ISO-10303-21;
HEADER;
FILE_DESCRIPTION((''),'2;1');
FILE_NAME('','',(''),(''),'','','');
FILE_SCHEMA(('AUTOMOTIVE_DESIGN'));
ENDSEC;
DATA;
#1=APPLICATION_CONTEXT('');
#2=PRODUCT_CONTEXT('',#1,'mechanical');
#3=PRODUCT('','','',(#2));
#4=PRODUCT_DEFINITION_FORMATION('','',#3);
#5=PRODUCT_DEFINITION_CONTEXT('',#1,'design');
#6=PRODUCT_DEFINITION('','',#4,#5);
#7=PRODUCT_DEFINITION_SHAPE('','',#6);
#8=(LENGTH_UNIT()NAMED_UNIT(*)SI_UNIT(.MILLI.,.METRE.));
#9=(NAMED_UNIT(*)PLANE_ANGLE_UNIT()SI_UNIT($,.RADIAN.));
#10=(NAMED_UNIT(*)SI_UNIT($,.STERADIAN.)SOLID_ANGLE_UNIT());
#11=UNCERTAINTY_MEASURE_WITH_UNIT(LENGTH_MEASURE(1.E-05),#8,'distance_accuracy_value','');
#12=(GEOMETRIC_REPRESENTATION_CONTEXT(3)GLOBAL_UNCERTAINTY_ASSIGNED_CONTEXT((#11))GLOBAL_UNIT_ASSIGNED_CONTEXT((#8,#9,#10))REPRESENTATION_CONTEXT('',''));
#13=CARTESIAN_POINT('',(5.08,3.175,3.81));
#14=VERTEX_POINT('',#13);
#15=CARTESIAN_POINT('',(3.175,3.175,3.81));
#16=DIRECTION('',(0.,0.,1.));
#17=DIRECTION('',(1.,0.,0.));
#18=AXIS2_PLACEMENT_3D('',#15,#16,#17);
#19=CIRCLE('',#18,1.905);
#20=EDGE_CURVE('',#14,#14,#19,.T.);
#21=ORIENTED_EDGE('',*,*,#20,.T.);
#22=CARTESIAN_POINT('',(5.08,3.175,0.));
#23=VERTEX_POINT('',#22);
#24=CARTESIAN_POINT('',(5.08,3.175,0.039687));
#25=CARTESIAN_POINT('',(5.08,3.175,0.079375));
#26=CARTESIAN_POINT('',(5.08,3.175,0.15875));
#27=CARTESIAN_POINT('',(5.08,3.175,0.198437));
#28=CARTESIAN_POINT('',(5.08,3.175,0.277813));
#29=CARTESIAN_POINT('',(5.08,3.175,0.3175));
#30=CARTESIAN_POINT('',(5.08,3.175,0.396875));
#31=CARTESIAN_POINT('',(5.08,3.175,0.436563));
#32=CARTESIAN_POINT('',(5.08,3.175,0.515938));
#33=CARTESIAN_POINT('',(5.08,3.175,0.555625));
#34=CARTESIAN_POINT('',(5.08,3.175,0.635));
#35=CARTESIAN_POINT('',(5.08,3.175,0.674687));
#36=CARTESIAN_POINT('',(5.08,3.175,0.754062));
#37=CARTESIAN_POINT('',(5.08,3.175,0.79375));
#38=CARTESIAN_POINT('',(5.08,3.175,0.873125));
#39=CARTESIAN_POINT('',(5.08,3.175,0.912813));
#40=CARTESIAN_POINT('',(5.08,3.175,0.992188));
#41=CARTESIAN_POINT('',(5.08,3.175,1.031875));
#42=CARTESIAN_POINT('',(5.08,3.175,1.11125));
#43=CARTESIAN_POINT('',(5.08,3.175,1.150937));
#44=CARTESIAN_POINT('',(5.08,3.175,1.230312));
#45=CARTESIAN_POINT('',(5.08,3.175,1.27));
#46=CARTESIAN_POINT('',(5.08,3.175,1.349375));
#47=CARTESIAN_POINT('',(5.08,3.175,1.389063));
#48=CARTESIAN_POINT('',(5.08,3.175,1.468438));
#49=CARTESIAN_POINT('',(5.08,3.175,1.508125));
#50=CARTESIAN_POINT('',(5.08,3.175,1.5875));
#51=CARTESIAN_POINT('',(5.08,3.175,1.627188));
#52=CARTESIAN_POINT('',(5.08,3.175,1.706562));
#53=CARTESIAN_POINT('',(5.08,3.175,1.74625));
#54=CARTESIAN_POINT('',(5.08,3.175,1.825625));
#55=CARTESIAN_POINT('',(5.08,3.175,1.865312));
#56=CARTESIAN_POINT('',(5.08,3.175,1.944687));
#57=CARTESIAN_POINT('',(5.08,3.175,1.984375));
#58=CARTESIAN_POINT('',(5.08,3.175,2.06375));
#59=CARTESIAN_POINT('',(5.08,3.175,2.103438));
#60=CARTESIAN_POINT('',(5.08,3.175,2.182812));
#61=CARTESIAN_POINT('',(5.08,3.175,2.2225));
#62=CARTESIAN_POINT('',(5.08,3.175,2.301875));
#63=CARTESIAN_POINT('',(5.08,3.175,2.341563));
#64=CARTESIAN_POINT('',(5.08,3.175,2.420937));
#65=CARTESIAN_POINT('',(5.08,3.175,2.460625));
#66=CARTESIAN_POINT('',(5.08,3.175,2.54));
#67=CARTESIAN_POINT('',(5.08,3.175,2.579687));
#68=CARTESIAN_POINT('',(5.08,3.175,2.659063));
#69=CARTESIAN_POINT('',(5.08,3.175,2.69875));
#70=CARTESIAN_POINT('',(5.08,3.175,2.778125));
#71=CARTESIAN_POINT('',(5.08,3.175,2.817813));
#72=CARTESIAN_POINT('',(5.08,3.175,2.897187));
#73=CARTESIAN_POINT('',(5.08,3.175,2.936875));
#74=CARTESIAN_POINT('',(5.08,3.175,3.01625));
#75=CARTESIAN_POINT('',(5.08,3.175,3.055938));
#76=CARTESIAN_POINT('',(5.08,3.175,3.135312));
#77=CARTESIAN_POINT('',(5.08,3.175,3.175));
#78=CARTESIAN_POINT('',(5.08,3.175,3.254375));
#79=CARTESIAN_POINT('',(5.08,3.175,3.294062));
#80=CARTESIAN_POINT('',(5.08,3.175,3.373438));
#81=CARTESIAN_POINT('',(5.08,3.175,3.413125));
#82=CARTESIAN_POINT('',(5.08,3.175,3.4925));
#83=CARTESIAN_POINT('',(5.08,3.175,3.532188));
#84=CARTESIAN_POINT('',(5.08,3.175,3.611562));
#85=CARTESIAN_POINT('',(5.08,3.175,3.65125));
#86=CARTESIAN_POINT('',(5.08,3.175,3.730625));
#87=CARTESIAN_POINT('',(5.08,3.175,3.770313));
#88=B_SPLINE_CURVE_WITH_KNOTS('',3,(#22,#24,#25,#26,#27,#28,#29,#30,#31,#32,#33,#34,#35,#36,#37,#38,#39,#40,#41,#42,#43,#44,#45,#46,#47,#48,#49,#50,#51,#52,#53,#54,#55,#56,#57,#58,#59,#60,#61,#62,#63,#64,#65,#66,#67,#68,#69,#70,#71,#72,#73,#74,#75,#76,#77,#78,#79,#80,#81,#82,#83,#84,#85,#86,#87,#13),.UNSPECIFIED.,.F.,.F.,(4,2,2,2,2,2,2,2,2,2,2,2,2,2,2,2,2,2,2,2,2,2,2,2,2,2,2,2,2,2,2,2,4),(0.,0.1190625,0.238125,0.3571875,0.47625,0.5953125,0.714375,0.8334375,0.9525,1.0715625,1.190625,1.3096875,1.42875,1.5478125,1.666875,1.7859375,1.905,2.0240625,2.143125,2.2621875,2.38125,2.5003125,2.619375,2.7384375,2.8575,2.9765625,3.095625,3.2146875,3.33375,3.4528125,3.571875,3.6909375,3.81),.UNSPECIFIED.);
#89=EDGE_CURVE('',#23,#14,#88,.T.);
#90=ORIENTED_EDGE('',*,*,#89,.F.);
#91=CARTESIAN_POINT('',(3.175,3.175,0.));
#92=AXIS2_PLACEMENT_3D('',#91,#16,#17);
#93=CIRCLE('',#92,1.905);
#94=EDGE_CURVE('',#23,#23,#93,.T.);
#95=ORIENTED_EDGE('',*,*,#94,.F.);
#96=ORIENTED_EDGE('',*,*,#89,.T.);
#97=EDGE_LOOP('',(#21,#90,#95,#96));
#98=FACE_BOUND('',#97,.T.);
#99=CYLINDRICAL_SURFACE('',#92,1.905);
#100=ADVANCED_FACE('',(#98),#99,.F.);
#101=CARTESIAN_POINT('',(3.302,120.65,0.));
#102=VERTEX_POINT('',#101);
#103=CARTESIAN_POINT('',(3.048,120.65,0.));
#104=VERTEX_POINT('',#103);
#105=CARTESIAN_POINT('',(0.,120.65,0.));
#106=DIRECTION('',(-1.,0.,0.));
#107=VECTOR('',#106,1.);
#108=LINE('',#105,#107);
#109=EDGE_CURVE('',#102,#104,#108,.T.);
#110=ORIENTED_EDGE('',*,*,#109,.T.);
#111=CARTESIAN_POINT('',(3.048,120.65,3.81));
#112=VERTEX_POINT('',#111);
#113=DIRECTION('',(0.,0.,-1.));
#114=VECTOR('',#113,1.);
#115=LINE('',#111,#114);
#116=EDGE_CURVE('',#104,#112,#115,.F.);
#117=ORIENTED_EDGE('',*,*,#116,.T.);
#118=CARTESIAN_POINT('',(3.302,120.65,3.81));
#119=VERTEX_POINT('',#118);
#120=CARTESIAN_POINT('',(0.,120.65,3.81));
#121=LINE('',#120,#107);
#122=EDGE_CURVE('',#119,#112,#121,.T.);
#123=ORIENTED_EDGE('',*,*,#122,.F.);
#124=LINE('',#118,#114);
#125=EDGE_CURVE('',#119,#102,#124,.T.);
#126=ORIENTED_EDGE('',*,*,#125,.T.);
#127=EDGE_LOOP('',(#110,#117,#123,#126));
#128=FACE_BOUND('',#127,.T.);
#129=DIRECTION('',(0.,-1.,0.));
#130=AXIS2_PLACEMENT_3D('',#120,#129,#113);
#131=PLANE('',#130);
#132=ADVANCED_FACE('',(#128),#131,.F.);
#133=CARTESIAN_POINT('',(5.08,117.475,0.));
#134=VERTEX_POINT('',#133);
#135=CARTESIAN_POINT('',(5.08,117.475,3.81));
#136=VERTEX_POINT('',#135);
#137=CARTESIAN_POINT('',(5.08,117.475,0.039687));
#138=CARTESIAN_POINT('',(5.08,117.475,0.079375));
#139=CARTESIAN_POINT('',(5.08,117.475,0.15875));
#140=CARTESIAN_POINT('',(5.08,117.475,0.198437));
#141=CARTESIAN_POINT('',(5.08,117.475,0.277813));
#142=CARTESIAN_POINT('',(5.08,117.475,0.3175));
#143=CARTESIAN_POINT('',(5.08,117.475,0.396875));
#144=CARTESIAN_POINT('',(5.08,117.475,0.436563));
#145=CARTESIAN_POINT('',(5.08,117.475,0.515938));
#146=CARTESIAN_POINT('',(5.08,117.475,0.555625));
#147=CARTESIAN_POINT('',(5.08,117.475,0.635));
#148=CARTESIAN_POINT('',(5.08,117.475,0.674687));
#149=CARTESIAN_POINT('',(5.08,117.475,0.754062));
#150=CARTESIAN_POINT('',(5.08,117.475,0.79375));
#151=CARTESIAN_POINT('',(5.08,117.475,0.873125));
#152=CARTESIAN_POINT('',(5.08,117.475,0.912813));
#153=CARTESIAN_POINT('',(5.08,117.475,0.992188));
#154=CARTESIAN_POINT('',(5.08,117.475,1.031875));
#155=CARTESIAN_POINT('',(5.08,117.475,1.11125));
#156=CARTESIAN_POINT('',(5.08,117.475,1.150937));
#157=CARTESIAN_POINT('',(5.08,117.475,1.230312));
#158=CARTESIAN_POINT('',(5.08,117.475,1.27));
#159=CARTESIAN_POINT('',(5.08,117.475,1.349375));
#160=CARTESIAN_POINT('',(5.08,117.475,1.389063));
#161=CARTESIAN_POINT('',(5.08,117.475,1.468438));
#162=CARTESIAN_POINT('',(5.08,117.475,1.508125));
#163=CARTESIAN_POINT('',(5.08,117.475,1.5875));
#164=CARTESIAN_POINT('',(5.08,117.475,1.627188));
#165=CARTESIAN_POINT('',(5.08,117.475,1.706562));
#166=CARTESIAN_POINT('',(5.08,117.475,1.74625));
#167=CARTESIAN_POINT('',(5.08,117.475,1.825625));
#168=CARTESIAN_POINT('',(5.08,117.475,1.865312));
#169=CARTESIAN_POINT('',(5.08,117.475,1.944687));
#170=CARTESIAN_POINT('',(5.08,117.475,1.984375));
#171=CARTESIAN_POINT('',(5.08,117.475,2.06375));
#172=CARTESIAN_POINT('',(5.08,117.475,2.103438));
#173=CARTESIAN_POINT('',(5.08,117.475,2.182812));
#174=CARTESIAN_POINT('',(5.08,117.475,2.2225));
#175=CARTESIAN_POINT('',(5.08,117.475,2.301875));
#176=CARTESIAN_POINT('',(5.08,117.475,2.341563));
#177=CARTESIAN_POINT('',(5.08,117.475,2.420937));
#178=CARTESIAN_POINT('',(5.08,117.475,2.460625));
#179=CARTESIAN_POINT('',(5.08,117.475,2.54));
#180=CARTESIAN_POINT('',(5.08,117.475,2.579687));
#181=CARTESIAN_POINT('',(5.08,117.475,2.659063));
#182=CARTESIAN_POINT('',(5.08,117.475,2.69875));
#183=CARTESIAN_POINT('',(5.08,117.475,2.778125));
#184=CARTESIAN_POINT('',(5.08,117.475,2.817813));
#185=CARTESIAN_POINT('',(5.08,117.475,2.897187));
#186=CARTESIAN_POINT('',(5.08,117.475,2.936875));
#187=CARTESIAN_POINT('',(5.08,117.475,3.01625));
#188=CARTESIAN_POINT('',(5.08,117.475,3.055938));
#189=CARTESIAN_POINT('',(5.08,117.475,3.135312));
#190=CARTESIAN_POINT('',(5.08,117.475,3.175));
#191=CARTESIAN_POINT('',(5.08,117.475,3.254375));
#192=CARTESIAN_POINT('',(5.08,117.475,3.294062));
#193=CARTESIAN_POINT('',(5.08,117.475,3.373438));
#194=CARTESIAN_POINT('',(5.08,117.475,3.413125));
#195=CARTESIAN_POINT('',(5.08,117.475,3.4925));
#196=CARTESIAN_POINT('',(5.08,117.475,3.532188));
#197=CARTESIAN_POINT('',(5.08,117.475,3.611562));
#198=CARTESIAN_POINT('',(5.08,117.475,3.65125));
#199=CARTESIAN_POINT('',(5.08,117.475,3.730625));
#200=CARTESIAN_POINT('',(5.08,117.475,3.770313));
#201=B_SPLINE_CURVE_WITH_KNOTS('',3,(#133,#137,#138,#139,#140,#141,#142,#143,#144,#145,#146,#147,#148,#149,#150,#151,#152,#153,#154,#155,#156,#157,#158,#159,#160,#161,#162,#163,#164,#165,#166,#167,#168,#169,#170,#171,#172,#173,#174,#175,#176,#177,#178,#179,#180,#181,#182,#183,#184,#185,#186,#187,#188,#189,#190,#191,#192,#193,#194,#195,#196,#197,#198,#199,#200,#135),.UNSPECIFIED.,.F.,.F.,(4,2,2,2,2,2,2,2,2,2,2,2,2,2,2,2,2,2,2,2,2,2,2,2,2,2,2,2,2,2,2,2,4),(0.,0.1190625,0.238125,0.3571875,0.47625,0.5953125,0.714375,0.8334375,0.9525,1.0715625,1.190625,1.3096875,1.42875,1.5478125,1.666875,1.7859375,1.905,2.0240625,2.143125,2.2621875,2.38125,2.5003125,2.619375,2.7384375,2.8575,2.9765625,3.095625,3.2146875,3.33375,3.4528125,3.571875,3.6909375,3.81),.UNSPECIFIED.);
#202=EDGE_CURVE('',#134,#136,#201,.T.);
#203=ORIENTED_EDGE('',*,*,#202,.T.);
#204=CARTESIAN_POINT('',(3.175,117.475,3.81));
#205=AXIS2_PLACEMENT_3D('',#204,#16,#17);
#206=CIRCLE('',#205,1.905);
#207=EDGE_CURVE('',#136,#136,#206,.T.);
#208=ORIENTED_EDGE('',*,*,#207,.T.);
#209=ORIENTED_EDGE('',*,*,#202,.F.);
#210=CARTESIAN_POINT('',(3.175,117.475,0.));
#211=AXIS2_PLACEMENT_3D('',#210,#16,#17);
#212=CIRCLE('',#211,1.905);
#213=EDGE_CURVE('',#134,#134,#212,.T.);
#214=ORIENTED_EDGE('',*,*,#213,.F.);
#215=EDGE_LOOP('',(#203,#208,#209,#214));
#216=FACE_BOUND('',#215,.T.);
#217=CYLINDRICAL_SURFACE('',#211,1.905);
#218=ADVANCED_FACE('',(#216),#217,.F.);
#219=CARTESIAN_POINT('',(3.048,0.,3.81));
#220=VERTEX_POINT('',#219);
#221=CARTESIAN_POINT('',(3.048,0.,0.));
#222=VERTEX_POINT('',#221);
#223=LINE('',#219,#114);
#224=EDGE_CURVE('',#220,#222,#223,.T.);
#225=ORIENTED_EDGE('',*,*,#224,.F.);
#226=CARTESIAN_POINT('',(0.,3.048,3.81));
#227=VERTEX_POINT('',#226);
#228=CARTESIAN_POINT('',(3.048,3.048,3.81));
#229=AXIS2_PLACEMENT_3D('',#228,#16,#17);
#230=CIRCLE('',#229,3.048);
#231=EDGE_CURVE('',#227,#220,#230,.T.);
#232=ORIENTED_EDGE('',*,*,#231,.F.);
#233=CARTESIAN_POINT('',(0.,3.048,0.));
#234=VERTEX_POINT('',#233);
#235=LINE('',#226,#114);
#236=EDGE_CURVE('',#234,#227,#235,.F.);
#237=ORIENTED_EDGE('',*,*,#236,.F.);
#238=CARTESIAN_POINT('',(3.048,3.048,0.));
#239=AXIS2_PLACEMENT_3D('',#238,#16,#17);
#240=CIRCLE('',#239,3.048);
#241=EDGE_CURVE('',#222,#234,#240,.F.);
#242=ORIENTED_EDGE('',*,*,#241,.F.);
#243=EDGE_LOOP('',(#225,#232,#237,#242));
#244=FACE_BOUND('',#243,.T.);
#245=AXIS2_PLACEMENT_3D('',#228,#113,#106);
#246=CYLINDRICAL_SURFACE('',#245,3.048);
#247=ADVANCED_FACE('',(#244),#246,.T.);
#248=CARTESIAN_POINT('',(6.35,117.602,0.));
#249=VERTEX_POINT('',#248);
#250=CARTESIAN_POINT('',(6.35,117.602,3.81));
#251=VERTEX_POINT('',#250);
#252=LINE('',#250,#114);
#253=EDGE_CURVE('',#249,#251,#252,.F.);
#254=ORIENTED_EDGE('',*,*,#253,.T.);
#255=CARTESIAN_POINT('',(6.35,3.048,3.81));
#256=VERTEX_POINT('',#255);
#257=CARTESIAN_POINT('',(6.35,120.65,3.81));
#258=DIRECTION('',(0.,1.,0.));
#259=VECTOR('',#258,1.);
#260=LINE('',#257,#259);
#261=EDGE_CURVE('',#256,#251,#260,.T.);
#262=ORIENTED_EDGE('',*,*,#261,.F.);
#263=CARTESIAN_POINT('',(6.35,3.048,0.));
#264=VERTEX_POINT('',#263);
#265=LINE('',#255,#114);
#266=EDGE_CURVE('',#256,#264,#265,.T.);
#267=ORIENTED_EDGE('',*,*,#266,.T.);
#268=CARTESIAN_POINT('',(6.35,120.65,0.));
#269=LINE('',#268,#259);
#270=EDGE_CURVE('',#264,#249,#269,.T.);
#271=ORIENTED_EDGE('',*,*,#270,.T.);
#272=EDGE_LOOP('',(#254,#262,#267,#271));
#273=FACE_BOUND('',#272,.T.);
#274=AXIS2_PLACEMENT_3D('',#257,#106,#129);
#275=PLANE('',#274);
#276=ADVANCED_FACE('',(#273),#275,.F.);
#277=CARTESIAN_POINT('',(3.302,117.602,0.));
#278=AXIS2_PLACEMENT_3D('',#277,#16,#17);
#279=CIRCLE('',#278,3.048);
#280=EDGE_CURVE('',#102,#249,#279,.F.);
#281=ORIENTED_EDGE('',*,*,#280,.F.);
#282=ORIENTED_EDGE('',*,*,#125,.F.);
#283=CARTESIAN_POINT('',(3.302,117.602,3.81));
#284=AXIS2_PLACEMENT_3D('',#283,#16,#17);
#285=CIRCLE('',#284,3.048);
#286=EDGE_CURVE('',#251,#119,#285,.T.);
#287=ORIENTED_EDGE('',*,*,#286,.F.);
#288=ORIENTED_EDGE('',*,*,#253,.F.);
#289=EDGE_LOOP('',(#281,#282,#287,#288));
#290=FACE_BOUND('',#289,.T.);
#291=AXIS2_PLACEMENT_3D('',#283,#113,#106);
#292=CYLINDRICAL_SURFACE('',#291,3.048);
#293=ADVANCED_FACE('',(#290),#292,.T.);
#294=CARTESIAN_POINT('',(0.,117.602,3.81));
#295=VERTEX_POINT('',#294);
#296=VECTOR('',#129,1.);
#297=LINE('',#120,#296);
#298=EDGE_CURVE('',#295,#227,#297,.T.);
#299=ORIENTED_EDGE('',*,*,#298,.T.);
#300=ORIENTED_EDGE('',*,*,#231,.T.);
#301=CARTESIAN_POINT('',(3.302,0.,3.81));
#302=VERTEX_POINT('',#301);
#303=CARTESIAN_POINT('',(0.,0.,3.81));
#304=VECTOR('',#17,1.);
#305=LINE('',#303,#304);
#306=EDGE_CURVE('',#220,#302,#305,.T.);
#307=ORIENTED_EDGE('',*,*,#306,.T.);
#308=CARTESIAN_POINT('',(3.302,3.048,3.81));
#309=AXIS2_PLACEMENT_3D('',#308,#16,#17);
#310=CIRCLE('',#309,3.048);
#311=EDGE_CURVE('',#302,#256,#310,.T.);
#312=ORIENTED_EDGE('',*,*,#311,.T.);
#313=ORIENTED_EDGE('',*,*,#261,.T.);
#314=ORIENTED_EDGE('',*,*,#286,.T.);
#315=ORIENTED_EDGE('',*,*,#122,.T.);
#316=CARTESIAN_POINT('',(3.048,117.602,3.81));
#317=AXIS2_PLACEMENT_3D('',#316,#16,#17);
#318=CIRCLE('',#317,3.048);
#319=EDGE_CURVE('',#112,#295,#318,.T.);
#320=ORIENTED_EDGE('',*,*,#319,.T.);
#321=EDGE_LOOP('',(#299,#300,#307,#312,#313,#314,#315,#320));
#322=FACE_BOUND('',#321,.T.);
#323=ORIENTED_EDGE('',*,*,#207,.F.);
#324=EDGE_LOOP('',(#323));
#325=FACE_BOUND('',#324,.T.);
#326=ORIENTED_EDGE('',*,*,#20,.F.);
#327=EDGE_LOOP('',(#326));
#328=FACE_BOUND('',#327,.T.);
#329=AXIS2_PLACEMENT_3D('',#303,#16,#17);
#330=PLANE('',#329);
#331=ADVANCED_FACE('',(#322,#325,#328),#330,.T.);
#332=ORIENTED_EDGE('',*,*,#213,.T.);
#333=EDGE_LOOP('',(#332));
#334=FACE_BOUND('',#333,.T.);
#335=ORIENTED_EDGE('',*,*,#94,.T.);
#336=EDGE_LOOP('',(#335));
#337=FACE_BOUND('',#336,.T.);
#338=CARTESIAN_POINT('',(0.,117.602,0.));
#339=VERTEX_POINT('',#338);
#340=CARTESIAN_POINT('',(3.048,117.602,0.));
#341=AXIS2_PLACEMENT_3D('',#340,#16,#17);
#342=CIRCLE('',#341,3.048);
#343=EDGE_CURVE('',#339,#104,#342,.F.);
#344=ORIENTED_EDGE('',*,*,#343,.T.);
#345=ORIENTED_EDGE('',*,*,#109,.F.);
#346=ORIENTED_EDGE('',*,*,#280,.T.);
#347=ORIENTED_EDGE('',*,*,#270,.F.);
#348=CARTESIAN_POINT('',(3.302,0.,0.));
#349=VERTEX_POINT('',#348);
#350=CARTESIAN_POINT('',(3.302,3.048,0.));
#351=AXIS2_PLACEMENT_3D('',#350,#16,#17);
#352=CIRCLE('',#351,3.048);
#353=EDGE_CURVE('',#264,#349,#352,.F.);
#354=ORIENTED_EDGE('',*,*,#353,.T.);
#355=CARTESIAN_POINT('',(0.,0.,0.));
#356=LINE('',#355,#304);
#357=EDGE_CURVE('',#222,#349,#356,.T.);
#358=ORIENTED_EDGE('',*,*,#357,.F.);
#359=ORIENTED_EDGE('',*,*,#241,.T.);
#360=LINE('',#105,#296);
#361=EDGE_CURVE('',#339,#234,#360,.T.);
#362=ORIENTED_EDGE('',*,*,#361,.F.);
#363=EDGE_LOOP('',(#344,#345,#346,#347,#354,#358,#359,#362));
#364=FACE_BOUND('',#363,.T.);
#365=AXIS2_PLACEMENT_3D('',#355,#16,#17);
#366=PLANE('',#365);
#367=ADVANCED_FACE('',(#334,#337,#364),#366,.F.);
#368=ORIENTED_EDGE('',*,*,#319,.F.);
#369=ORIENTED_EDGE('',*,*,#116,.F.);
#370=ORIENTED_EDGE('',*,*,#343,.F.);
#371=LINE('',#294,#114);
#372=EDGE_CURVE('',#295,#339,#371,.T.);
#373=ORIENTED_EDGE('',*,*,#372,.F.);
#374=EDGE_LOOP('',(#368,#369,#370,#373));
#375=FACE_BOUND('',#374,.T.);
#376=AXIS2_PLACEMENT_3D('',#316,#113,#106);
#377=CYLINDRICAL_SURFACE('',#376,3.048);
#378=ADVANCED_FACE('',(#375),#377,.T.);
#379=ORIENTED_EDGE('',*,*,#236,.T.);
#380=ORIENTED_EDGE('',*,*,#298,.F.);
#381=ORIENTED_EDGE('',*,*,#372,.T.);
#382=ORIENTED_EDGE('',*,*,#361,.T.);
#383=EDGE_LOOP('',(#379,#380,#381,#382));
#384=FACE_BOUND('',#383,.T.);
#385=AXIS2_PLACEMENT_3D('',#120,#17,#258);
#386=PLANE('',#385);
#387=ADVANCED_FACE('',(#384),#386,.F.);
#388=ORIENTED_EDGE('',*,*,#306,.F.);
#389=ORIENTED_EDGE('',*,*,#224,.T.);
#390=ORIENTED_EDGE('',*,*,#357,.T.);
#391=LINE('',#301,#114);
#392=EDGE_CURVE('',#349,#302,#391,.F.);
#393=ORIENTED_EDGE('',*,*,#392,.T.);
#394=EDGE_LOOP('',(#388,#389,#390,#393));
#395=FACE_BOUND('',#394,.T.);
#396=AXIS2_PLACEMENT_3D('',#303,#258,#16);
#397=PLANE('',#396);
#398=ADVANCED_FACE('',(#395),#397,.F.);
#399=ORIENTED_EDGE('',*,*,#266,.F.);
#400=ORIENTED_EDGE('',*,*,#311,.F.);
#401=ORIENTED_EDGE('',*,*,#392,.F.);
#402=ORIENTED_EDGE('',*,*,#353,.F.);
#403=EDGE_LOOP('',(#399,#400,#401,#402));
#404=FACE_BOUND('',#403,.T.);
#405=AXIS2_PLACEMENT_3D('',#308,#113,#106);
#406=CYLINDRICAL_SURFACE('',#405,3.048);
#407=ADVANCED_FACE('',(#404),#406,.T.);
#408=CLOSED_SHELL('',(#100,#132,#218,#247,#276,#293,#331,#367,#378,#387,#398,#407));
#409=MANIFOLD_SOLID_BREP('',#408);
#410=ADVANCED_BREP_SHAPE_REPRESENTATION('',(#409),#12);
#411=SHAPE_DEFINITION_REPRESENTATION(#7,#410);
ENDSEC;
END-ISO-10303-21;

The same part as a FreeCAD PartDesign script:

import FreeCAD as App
import Part
import Sketcher

V = App.Vector
Q = App.Units.Quantity


def edges_at(feature, points):
    """Names of the edges that pass closest to the given points."""
    edges = feature.Shape.Edges
    near = lambda p: min(range(len(edges)), key=lambda i: edges[i].distToShape(Part.Vertex(*p))[0])
    return sorted({f"Edge{near(p) + 1}" for p in points})


def add_polygon(sketch, points):
    """Adds a closed chain of lines whose ends are joined by coincident constraints."""
    first, n = sketch.GeometryCount, len(points)
    for a, b in zip(points, points[1:] + points[:1]):
        sketch.addGeometry(Part.LineSegment(App.Vector(*a, 0), App.Vector(*b, 0)), False)
    for i in range(n):
        sketch.addConstraint(Sketcher.Constraint("Coincident", first + i, 2, first + (i + 1) % n, 1))

doc = App.newDocument("Part")
body = doc.addObject("PartDesign::Body", "Body")

# Sketch on XY plane
sketch1 = doc.addObject("Sketcher::SketchObject", "Sketch")
body.addObject(sketch1)
sketch1.AttachmentSupport = (doc.XY_Plane, [""])
sketch1.MapMode = "FlatFace"
add_polygon(sketch1, [(0, 121), (0, 0), (6, 0), (6, 121)])  # lines 0-3
sketch1.addConstraint(Sketcher.Constraint("Vertical", 0))
sketch1.addConstraint(Sketcher.Constraint("Horizontal", 1))
sketch1.addConstraint(Sketcher.Constraint("Vertical", 2))
sketch1.addConstraint(Sketcher.Constraint("Horizontal", 3))
sketch1.addConstraint(Sketcher.Constraint("Coincident", 0, 2, -1, 1))
sketch1.addConstraint(Sketcher.Constraint("DistanceX", 1, 1, 1, 2, Q("0.25 in")))
sketch1.addConstraint(Sketcher.Constraint("DistanceY", 0, 2, 0, 1, Q("4.75 in")))
pad1 = doc.addObject("PartDesign::Pad", "Pad")
body.addObject(pad1)
pad1.Profile = sketch1
pad1.Length = Q("0.15 in")
doc.recompute()

fillet = doc.addObject("PartDesign::Fillet", "Fillet")
body.addObject(fillet)
fillet.Base = (pad1, edges_at(pad1, [(6.35, 120.65, 1.905)]))
fillet.Radius = Q("0.12 in")
doc.recompute()

fillet2 = doc.addObject("PartDesign::Fillet", "Fillet001")
body.addObject(fillet2)
fillet2.Base = (fillet, edges_at(fillet, [(0, 120.65, 1.905)]))
fillet2.Radius = Q("0.12 in")
doc.recompute()

fillet3 = doc.addObject("PartDesign::Fillet", "Fillet002")
body.addObject(fillet3)
fillet3.Base = (fillet2, edges_at(fillet2, [(6.35, 0, 1.905)]))
fillet3.Radius = Q("0.12 in")
doc.recompute()

fillet4 = doc.addObject("PartDesign::Fillet", "Fillet003")
body.addObject(fillet4)
fillet4.Base = (fillet3, edges_at(fillet3, [(0, 0, 1.905)]))
fillet4.Radius = Q("0.12 in")

# Sketch on XY plane
sketch2 = doc.addObject("Sketcher::SketchObject", "Sketch001")
body.addObject(sketch2)
sketch2.AttachmentSupport = (doc.XY_Plane, [""])
sketch2.MapMode = "FlatFace"
sketch2.AttachmentOffset = App.Placement(V(0, 0, 0.15 * 25.4), App.Rotation())
sketch2.addGeometry(Part.Circle(V(3.2, 3.2, 0), V(0, 0, 1), 1.9), False)
sketch2.addGeometry(Part.Circle(V(3.2, 117.5, 0), V(0, 0, 1), 1.9), False)
sketch2.addConstraint(Sketcher.Constraint("Equal", 0, 1))
sketch2.addConstraint(Sketcher.Constraint("Vertical", 0, 3, 1, 3))
sketch2.addConstraint(Sketcher.Constraint("Diameter", 0, Q("0.15 in")))
sketch2.addConstraint(Sketcher.Constraint("DistanceY", 0, 3, 1, 3, Q("4.5 in")))
sketch2.addConstraint(Sketcher.Constraint("DistanceX", -1, 1, 0, 3, Q("0.125 in")))
sketch2.addConstraint(Sketcher.Constraint("DistanceY", -1, 1, 0, 3, Q("0.125 in")))
pocket1 = doc.addObject("PartDesign::Pocket", "Pocket")
body.addObject(pocket1)
pocket1.Profile = sketch2
pocket1.Type = "ThroughAll"

doc.recompute()
